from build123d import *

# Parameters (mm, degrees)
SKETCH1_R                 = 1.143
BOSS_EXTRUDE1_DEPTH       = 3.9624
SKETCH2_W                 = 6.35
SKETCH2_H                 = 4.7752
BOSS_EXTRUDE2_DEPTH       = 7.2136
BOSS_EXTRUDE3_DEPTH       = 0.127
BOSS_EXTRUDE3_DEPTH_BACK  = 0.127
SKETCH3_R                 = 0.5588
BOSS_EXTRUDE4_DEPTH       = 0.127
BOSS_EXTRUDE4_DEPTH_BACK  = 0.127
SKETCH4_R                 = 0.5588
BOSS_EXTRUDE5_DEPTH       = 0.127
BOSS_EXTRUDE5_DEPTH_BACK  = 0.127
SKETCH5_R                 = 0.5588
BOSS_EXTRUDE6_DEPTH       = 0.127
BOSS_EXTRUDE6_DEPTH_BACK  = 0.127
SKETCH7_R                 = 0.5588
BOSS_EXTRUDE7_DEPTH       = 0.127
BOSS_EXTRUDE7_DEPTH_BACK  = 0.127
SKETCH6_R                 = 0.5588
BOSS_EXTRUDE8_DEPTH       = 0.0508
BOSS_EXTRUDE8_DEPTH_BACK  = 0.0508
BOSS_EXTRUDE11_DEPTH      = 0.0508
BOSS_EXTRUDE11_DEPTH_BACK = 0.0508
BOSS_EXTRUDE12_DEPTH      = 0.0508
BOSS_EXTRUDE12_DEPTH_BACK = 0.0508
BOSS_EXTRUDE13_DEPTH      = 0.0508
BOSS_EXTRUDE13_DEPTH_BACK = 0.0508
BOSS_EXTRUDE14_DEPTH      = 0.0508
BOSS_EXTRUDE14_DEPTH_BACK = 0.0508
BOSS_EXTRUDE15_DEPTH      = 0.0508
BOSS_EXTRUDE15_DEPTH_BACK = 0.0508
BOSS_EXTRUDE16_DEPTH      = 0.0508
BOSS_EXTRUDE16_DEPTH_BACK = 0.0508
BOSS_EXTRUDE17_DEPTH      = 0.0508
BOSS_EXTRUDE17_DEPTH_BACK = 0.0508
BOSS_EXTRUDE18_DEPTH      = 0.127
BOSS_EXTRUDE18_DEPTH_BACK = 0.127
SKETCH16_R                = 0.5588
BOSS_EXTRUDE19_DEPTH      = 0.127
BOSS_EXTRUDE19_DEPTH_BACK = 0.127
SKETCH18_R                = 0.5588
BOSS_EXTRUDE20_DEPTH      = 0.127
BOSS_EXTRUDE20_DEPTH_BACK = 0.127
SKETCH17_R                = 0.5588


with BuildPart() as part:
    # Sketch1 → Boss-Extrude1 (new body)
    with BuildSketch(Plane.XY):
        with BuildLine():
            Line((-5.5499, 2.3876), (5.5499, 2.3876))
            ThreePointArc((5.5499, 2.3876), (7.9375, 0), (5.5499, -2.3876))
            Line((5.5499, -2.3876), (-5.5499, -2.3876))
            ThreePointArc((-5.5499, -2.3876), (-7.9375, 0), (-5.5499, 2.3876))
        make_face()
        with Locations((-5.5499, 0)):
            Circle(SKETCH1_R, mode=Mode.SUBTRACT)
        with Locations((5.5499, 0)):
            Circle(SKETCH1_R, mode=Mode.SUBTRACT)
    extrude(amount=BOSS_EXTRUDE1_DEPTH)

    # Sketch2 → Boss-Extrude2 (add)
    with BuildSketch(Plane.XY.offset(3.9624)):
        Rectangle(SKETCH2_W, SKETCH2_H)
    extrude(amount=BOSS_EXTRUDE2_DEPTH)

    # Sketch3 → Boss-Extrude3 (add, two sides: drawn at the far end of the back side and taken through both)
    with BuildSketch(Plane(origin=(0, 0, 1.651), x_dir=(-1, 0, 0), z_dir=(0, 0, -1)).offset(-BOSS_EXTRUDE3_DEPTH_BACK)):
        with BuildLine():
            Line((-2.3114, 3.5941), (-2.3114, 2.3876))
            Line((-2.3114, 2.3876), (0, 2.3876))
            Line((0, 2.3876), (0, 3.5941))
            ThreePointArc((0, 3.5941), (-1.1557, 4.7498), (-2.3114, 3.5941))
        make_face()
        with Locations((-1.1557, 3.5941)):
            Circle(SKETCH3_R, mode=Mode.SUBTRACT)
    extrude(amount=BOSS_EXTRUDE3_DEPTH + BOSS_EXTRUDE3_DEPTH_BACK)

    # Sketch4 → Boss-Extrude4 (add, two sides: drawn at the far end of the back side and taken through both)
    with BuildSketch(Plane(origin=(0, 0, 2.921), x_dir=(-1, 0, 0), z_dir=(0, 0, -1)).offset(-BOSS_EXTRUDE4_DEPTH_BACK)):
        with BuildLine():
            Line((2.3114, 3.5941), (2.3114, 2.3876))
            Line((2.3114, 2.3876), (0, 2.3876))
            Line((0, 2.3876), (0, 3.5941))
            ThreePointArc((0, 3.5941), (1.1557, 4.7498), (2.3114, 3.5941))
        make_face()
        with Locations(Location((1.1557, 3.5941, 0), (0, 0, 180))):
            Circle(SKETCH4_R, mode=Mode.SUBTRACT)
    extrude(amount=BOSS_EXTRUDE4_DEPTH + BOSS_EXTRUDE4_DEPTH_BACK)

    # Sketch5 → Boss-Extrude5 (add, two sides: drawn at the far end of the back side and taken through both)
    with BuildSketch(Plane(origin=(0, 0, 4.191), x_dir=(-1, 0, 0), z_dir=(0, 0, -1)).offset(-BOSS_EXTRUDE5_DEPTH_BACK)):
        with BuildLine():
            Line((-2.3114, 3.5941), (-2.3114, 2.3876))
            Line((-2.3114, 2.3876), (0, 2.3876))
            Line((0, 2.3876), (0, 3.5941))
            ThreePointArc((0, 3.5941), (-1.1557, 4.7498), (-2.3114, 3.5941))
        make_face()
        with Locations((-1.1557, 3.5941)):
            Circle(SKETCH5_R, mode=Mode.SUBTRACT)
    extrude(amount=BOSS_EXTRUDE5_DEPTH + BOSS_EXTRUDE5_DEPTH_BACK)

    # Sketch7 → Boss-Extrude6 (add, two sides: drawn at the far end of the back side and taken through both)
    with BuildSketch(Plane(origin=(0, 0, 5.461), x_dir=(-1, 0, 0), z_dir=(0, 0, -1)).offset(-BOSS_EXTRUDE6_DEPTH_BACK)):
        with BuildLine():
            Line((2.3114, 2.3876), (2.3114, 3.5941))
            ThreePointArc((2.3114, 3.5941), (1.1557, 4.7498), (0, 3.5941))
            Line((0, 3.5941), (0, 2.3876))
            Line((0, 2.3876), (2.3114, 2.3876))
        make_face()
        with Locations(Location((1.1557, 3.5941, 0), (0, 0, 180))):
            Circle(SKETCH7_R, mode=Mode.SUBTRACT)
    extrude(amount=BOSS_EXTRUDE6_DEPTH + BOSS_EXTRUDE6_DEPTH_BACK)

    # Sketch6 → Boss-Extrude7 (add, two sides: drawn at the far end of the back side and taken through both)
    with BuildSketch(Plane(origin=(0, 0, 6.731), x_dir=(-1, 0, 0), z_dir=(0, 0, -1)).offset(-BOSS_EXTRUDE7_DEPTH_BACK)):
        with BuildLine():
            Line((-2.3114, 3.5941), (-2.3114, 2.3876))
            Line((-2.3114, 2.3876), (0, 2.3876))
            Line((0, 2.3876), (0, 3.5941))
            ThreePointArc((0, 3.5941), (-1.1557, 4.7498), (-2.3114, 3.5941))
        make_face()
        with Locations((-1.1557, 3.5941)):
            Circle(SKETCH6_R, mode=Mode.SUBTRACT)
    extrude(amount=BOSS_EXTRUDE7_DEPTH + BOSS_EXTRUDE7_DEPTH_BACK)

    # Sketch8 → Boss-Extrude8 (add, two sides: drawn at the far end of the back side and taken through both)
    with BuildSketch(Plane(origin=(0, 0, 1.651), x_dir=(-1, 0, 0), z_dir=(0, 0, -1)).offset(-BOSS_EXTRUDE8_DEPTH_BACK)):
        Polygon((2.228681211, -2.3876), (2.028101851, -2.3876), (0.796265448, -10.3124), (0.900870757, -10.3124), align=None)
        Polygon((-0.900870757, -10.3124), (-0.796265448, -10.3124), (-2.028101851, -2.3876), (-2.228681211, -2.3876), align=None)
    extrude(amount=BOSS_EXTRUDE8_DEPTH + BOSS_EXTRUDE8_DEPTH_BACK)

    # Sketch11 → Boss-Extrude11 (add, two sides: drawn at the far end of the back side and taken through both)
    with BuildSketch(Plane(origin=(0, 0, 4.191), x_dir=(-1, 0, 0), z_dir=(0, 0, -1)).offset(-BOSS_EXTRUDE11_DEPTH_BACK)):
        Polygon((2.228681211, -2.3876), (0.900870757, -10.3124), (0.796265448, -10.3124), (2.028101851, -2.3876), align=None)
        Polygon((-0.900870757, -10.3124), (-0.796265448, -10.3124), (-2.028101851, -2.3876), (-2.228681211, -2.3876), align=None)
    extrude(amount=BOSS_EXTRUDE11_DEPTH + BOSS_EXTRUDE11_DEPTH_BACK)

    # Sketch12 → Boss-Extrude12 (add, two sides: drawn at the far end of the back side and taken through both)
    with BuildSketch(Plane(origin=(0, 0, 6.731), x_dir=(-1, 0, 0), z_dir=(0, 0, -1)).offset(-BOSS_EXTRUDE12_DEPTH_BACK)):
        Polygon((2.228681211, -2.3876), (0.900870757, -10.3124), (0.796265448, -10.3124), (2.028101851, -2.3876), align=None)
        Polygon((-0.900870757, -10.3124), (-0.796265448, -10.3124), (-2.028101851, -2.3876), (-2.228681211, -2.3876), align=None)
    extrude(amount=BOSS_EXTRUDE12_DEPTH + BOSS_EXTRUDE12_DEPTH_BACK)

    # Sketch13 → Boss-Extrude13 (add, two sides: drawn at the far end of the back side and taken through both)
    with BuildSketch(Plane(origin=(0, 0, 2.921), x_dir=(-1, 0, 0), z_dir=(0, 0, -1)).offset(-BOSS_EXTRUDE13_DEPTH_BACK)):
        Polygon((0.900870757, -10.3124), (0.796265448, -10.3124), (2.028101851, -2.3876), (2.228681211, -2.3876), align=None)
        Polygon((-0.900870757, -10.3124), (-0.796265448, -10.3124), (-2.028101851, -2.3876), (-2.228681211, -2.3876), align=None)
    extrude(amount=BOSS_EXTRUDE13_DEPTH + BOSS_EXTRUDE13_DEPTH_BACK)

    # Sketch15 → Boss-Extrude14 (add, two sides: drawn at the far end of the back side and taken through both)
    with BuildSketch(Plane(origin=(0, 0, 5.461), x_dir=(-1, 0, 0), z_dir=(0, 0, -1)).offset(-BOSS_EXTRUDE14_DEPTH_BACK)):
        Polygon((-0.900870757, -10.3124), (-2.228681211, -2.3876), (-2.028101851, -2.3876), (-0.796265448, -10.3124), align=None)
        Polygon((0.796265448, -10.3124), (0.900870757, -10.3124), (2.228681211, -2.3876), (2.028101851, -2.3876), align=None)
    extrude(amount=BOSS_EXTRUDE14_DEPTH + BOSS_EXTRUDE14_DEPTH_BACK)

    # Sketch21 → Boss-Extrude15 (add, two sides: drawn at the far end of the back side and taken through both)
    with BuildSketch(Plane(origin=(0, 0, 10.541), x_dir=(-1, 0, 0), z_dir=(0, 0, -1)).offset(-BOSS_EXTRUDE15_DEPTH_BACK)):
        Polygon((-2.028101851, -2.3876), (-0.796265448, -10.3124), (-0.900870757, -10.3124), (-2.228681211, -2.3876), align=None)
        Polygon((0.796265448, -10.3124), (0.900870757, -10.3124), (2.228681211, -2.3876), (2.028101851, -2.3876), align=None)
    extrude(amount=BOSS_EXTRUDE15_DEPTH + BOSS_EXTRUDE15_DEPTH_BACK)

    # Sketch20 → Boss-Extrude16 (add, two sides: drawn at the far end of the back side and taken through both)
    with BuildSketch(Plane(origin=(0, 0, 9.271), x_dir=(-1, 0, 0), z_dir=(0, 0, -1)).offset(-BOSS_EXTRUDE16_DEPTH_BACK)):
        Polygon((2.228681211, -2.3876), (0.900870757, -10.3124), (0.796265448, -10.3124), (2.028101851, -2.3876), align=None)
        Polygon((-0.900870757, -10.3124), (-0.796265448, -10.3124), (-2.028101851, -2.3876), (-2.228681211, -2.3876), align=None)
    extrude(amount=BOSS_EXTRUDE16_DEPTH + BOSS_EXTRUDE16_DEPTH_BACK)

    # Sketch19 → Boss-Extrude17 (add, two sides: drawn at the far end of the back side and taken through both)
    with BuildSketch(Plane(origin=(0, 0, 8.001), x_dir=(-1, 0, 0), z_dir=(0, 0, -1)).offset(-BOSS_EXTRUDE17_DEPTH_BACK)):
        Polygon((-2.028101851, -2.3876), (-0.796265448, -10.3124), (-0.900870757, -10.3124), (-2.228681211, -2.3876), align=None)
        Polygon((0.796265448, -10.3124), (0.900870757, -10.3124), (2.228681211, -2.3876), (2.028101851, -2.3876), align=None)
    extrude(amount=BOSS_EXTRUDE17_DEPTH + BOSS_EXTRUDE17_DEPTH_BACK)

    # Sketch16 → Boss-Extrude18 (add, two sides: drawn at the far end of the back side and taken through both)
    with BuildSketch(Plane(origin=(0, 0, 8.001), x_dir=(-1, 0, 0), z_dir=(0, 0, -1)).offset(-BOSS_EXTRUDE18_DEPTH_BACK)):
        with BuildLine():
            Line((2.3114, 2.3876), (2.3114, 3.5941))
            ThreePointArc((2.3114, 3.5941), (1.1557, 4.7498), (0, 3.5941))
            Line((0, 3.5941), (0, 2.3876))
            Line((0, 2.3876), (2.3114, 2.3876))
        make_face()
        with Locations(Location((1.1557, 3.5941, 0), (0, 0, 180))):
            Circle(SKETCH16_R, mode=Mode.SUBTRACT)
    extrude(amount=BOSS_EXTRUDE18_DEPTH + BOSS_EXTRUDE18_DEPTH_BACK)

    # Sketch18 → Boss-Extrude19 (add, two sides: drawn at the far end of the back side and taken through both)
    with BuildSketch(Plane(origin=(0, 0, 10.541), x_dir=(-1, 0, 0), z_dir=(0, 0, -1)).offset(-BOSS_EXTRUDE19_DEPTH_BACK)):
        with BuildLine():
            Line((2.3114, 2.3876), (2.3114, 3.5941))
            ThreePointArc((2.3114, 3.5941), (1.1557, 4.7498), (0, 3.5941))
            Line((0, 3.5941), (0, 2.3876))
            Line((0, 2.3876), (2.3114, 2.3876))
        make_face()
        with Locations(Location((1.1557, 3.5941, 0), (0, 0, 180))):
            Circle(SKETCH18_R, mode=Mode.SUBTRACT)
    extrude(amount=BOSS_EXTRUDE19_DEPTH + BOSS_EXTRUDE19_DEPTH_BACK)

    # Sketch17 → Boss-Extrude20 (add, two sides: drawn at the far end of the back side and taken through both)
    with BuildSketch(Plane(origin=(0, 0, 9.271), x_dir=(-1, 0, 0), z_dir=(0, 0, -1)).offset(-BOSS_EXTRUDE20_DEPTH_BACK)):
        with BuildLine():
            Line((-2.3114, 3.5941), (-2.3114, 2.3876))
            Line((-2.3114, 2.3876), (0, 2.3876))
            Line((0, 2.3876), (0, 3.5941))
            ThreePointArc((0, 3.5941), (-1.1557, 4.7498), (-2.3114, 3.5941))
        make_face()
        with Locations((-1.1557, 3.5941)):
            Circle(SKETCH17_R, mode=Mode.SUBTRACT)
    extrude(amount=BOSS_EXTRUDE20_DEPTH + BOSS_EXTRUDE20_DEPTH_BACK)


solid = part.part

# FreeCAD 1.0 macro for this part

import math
import FreeCAD as App
import Part
import Sketcher

V = App.Vector
Q = App.Units.Quantity

doc = App.newDocument("Part")
body = doc.addObject("PartDesign::Body", "Body")

sketch1 = doc.addObject("Sketcher::SketchObject", "Sketch")
body.addObject(sketch1)
sketch1.AttachmentSupport = (doc.XY_Plane, [""])
sketch1.MapMode = "FlatFace"
sketch1.addGeometry(Part.LineSegment(V(5.5, 2.4, 0), V(-5.5, 2.4, 0)), False)
sketch1.addGeometry(Part.ArcOfCircle(Part.Circle(V(-5.5, 0, 0), V(0, 0, 1), 2.4), math.radians(90), math.radians(270)), False)
sketch1.addGeometry(Part.LineSegment(V(-5.5, -2.4, 0), V(5.5, -2.4, 0)), False)
sketch1.addGeometry(Part.ArcOfCircle(Part.Circle(V(5.5, 0, 0), V(0, 0, 1), 2.4), math.radians(-90), math.radians(90)), False)
sketch1.addGeometry(Part.Circle(V(5.5, 0, 0), V(0, 0, 1), 1.1), False)
sketch1.addGeometry(Part.Circle(V(-5.5, 0, 0), V(0, 0, 1), 1.1), False)
sketch1.addConstraint(Sketcher.Constraint("Tangent", 0, 2, 1, 1))
sketch1.addConstraint(Sketcher.Constraint("Tangent", 1, 2, 2, 1))
sketch1.addConstraint(Sketcher.Constraint("Tangent", 2, 2, 3, 1))
sketch1.addConstraint(Sketcher.Constraint("Tangent", 3, 2, 0, 1))
sketch1.addConstraint(Sketcher.Constraint("Horizontal", 0))
sketch1.addConstraint(Sketcher.Constraint("Horizontal", 2))
sketch1.addConstraint(Sketcher.Constraint("Coincident", 4, 3, 3, 3))
sketch1.addConstraint(Sketcher.Constraint("Coincident", 5, 3, 1, 3))
sketch1.addConstraint(Sketcher.Constraint("Equal", 4, 5))
sketch1.addConstraint(Sketcher.Constraint("Symmetric", 1, 3, 3, 3, -1, 1))
sketch1.addConstraint(Sketcher.Constraint("Diameter", 4, Q("0.09 in")))
sketch1.addConstraint(Sketcher.Constraint("Radius", 1, Q("0.094 in")))
sketch1.addConstraint(Sketcher.Constraint("DistanceX", 0, 2, 0, 1, Q("0.437 in")))
pad1 = doc.addObject("PartDesign::Pad", "Pad")
body.addObject(pad1)
pad1.Profile = sketch1
pad1.Length = Q("0.156 in")

sketch2 = doc.addObject("Sketcher::SketchObject", "Sketch001")
body.addObject(sketch2)
sketch2.AttachmentSupport = (doc.XY_Plane, [""])
sketch2.MapMode = "FlatFace"
sketch2.AttachmentOffset = App.Placement(V(0, 0, 0.156 * 25.4), App.Rotation())
sketch2.addGeometry(Part.LineSegment(V(-3.2, 2.4, 0), V(-3.2, -2.4, 0)), False)
sketch2.addGeometry(Part.LineSegment(V(-3.2, -2.4, 0), V(3.2, -2.4, 0)), False)
sketch2.addGeometry(Part.LineSegment(V(3.2, -2.4, 0), V(3.2, 2.4, 0)), False)
sketch2.addGeometry(Part.LineSegment(V(3.2, 2.4, 0), V(-3.2, 2.4, 0)), False)
sketch2.addConstraint(Sketcher.Constraint("Coincident", 0, 2, 1, 1))
sketch2.addConstraint(Sketcher.Constraint("Coincident", 1, 2, 2, 1))
sketch2.addConstraint(Sketcher.Constraint("Coincident", 2, 2, 3, 1))
sketch2.addConstraint(Sketcher.Constraint("Coincident", 3, 2, 0, 1))
sketch2.addConstraint(Sketcher.Constraint("Vertical", 0))
sketch2.addConstraint(Sketcher.Constraint("Horizontal", 1))
sketch2.addConstraint(Sketcher.Constraint("Vertical", 2))
sketch2.addConstraint(Sketcher.Constraint("Horizontal", 3))
sketch2.addConstraint(Sketcher.Constraint("Symmetric", 0, 2, 2, 2, -1, 1))
sketch2.addConstraint(Sketcher.Constraint("DistanceX", 1, 1, 1, 2, Q("0.25 in")))
sketch2.addConstraint(Sketcher.Constraint("DistanceY", 0, 2, 0, 1, Q("0.188 in")))
pad2 = doc.addObject("PartDesign::Pad", "Pad001")
body.addObject(pad2)
pad2.Profile = sketch2
pad2.Length = Q("0.284 in")

sketch3 = doc.addObject("Sketcher::SketchObject", "Sketch002")
body.addObject(sketch3)
sketch3.AttachmentSupport = (doc.XY_Plane, [""])
sketch3.MapMode = "FlatFace"
sketch3.AttachmentOffset = App.Placement(V(0, 0, 0.065 * 25.4), App.Rotation())
sketch3.addGeometry(Part.LineSegment(V(2.3, 3.6, 0), V(2.3, 2.4, 0)), False)
sketch3.addGeometry(Part.LineSegment(V(2.3, 2.4, 0), V(0, 2.4, 0)), False)
sketch3.addGeometry(Part.LineSegment(V(0, 2.4, 0), V(0, 3.6, 0)), False)
sketch3.addGeometry(Part.ArcOfCircle(Part.Circle(V(1.2, 3.6, 0), V(0, 0, 1), 1.2), math.radians(0), math.radians(180)), False)
sketch3.addGeometry(Part.Circle(V(1.2, 3.6, 0), V(0, 0, 1), 0.6), False)
sketch3.addConstraint(Sketcher.Constraint("Coincident", 0, 2, 1, 1))
sketch3.addConstraint(Sketcher.Constraint("Coincident", 1, 2, 2, 1))
sketch3.addConstraint(Sketcher.Constraint("Tangent", 2, 2, 3, 2))
sketch3.addConstraint(Sketcher.Constraint("Tangent", 3, 1, 0, 1))
sketch3.addConstraint(Sketcher.Constraint("Vertical", 0))
sketch3.addConstraint(Sketcher.Constraint("Horizontal", 1))
sketch3.addConstraint(Sketcher.Constraint("Vertical", 2))
sketch3.addConstraint(Sketcher.Constraint("Coincident", 4, 3, 3, 3))
sketch3.addConstraint(Sketcher.Constraint("PointOnObject", 1, 2, -2))
sketch3.addConstraint(Sketcher.Constraint("Diameter", 4, Q("0.044 in")))
sketch3.addConstraint(Sketcher.Constraint("Radius", 3, Q("0.0455 in")))
sketch3.addConstraint(Sketcher.Constraint("DistanceY", 0, 2, 0, 1, Q("0.0475 in")))
sketch3.addConstraint(Sketcher.Constraint("DistanceY", -1, 1, 0, 2, Q("0.094 in")))
pad3 = doc.addObject("PartDesign::Pad", "Pad002")
body.addObject(pad3)
pad3.Profile = sketch3
pad3.Type = "TwoLengths"
pad3.Length = Q("0.005 in")
pad3.Length2 = Q("0.005 in")
pad3.Reversed = True

sketch4 = doc.addObject("Sketcher::SketchObject", "Sketch003")
body.addObject(sketch4)
sketch4.AttachmentSupport = (doc.XY_Plane, [""])
sketch4.MapMode = "FlatFace"
sketch4.AttachmentOffset = App.Placement(V(0, 0, 0.115 * 25.4), App.Rotation())
sketch4.addGeometry(Part.LineSegment(V(-2.3, 2.4, 0), V(-2.3, 3.6, 0)), False)
sketch4.addGeometry(Part.ArcOfCircle(Part.Circle(V(-1.2, 3.6, 0), V(0, 0, 1), 1.2), math.radians(0), math.radians(180)), False)
sketch4.addGeometry(Part.LineSegment(V(0, 3.6, 0), V(0, 2.4, 0)), False)
sketch4.addGeometry(Part.LineSegment(V(0, 2.4, 0), V(-2.3, 2.4, 0)), False)
sketch4.addGeometry(Part.Circle(V(-1.2, 3.6, 0), V(0, 0, 1), 0.6), False)
sketch4.addConstraint(Sketcher.Constraint("Tangent", 0, 2, 1, 2))
sketch4.addConstraint(Sketcher.Constraint("Tangent", 1, 1, 2, 1))
sketch4.addConstraint(Sketcher.Constraint("Coincident", 2, 2, 3, 1))
sketch4.addConstraint(Sketcher.Constraint("Coincident", 3, 2, 0, 1))
sketch4.addConstraint(Sketcher.Constraint("Vertical", 0))
sketch4.addConstraint(Sketcher.Constraint("Vertical", 2))
sketch4.addConstraint(Sketcher.Constraint("Horizontal", 3))
sketch4.addConstraint(Sketcher.Constraint("Coincident", 4, 3, 1, 3))
sketch4.addConstraint(Sketcher.Constraint("PointOnObject", 1, 1, -2))
sketch4.addConstraint(Sketcher.Constraint("Diameter", 4, Q("0.044 in")))
sketch4.addConstraint(Sketcher.Constraint("Radius", 1, Q("0.0455 in")))
sketch4.addConstraint(Sketcher.Constraint("DistanceY", 0, 1, 0, 2, Q("0.0475 in")))
sketch4.addConstraint(Sketcher.Constraint("DistanceY", -1, 1, 2, 2, Q("0.094 in")))
pad4 = doc.addObject("PartDesign::Pad", "Pad003")
body.addObject(pad4)
pad4.Profile = sketch4
pad4.Type = "TwoLengths"
pad4.Length = Q("0.005 in")
pad4.Length2 = Q("0.005 in")
pad4.Reversed = True

sketch5 = doc.addObject("Sketcher::SketchObject", "Sketch004")
body.addObject(sketch5)
sketch5.AttachmentSupport = (doc.XY_Plane, [""])
sketch5.MapMode = "FlatFace"
sketch5.AttachmentOffset = App.Placement(V(0, 0, 0.165 * 25.4), App.Rotation())
sketch5.addGeometry(Part.LineSegment(V(2.3, 3.6, 0), V(2.3, 2.4, 0)), False)
sketch5.addGeometry(Part.LineSegment(V(2.3, 2.4, 0), V(0, 2.4, 0)), False)
sketch5.addGeometry(Part.LineSegment(V(0, 2.4, 0), V(0, 3.6, 0)), False)
sketch5.addGeometry(Part.ArcOfCircle(Part.Circle(V(1.2, 3.6, 0), V(0, 0, 1), 1.2), math.radians(0), math.radians(180)), False)
sketch5.addGeometry(Part.Circle(V(1.2, 3.6, 0), V(0, 0, 1), 0.6), False)
sketch5.addConstraint(Sketcher.Constraint("Coincident", 0, 2, 1, 1))
sketch5.addConstraint(Sketcher.Constraint("Coincident", 1, 2, 2, 1))
sketch5.addConstraint(Sketcher.Constraint("Tangent", 2, 2, 3, 2))
sketch5.addConstraint(Sketcher.Constraint("Tangent", 3, 1, 0, 1))
sketch5.addConstraint(Sketcher.Constraint("Vertical", 0))
sketch5.addConstraint(Sketcher.Constraint("Horizontal", 1))
sketch5.addConstraint(Sketcher.Constraint("Vertical", 2))
sketch5.addConstraint(Sketcher.Constraint("Coincident", 4, 3, 3, 3))
sketch5.addConstraint(Sketcher.Constraint("PointOnObject", 1, 2, -2))
sketch5.addConstraint(Sketcher.Constraint("Diameter", 4, Q("0.044 in")))
sketch5.addConstraint(Sketcher.Constraint("Radius", 3, Q("0.0455 in")))
sketch5.addConstraint(Sketcher.Constraint("DistanceY", 0, 2, 0, 1, Q("0.0475 in")))
sketch5.addConstraint(Sketcher.Constraint("DistanceY", -1, 1, 0, 2, Q("0.094 in")))
pad5 = doc.addObject("PartDesign::Pad", "Pad004")
body.addObject(pad5)
pad5.Profile = sketch5
pad5.Type = "TwoLengths"
pad5.Length = Q("0.005 in")
pad5.Length2 = Q("0.005 in")
pad5.Reversed = True

sketch6 = doc.addObject("Sketcher::SketchObject", "Sketch005")
body.addObject(sketch6)
sketch6.AttachmentSupport = (doc.XY_Plane, [""])
sketch6.MapMode = "FlatFace"
sketch6.AttachmentOffset = App.Placement(V(0, 0, 0.215 * 25.4), App.Rotation())
sketch6.addGeometry(Part.LineSegment(V(-2.3, 2.4, 0), V(-2.3, 3.6, 0)), False)
sketch6.addGeometry(Part.ArcOfCircle(Part.Circle(V(-1.2, 3.6, 0), V(0, 0, 1), 1.2), math.radians(0), math.radians(180)), False)
sketch6.addGeometry(Part.LineSegment(V(0, 3.6, 0), V(0, 2.4, 0)), False)
sketch6.addGeometry(Part.LineSegment(V(0, 2.4, 0), V(-2.3, 2.4, 0)), False)
sketch6.addGeometry(Part.Circle(V(-1.2, 3.6, 0), V(0, 0, 1), 0.6), False)
sketch6.addConstraint(Sketcher.Constraint("Tangent", 0, 2, 1, 2))
sketch6.addConstraint(Sketcher.Constraint("Tangent", 1, 1, 2, 1))
sketch6.addConstraint(Sketcher.Constraint("Coincident", 2, 2, 3, 1))
sketch6.addConstraint(Sketcher.Constraint("Coincident", 3, 2, 0, 1))
sketch6.addConstraint(Sketcher.Constraint("Vertical", 0))
sketch6.addConstraint(Sketcher.Constraint("Vertical", 2))
sketch6.addConstraint(Sketcher.Constraint("Horizontal", 3))
sketch6.addConstraint(Sketcher.Constraint("Coincident", 4, 3, 1, 3))
sketch6.addConstraint(Sketcher.Constraint("PointOnObject", 1, 1, -2))
sketch6.addConstraint(Sketcher.Constraint("Diameter", 4, Q("0.044 in")))
sketch6.addConstraint(Sketcher.Constraint("Radius", 1, Q("0.0455 in")))
sketch6.addConstraint(Sketcher.Constraint("DistanceY", 0, 1, 0, 2, Q("0.0475 in")))
sketch6.addConstraint(Sketcher.Constraint("DistanceY", -1, 1, 2, 2, Q("0.094 in")))
pad6 = doc.addObject("PartDesign::Pad", "Pad005")
body.addObject(pad6)
pad6.Profile = sketch6
pad6.Type = "TwoLengths"
pad6.Length = Q("0.005 in")
pad6.Length2 = Q("0.005 in")
pad6.Reversed = True

sketch7 = doc.addObject("Sketcher::SketchObject", "Sketch006")
body.addObject(sketch7)
sketch7.AttachmentSupport = (doc.XY_Plane, [""])
sketch7.MapMode = "FlatFace"
sketch7.AttachmentOffset = App.Placement(V(0, 0, 0.265 * 25.4), App.Rotation())
sketch7.addGeometry(Part.LineSegment(V(2.3, 3.6, 0), V(2.3, 2.4, 0)), False)
sketch7.addGeometry(Part.LineSegment(V(2.3, 2.4, 0), V(0, 2.4, 0)), False)
sketch7.addGeometry(Part.LineSegment(V(0, 2.4, 0), V(0, 3.6, 0)), False)
sketch7.addGeometry(Part.ArcOfCircle(Part.Circle(V(1.2, 3.6, 0), V(0, 0, 1), 1.2), math.radians(0), math.radians(180)), False)
sketch7.addGeometry(Part.Circle(V(1.2, 3.6, 0), V(0, 0, 1), 0.6), False)
sketch7.addConstraint(Sketcher.Constraint("Coincident", 0, 2, 1, 1))
sketch7.addConstraint(Sketcher.Constraint("Coincident", 1, 2, 2, 1))
sketch7.addConstraint(Sketcher.Constraint("Tangent", 2, 2, 3, 2))
sketch7.addConstraint(Sketcher.Constraint("Tangent", 3, 1, 0, 1))
sketch7.addConstraint(Sketcher.Constraint("Vertical", 0))
sketch7.addConstraint(Sketcher.Constraint("Horizontal", 1))
sketch7.addConstraint(Sketcher.Constraint("Vertical", 2))
sketch7.addConstraint(Sketcher.Constraint("Coincident", 4, 3, 3, 3))
sketch7.addConstraint(Sketcher.Constraint("PointOnObject", 1, 2, -2))
sketch7.addConstraint(Sketcher.Constraint("Diameter", 4, Q("0.044 in")))
sketch7.addConstraint(Sketcher.Constraint("Radius", 3, Q("0.0455 in")))
sketch7.addConstraint(Sketcher.Constraint("DistanceY", 0, 2, 0, 1, Q("0.0475 in")))
sketch7.addConstraint(Sketcher.Constraint("DistanceY", -1, 1, 0, 2, Q("0.094 in")))
pad7 = doc.addObject("PartDesign::Pad", "Pad006")
body.addObject(pad7)
pad7.Profile = sketch7
pad7.Type = "TwoLengths"
pad7.Length = Q("0.005 in")
pad7.Length2 = Q("0.005 in")
pad7.Reversed = True

sketch8 = doc.addObject("Sketcher::SketchObject", "Sketch007")
body.addObject(sketch8)
sketch8.AttachmentSupport = (doc.XY_Plane, [""])
sketch8.MapMode = "FlatFace"
sketch8.AttachmentOffset = App.Placement(V(0, 0, 0.065 * 25.4), App.Rotation())
sketch8.addGeometry(Part.LineSegment(V(-2.23, -2.39, 0), V(-2.03, -2.39, 0)), False)
sketch8.addGeometry(Part.LineSegment(V(-2.03, -2.39, 0), V(-0.8, -10.31, 0)), False)
sketch8.addGeometry(Part.LineSegment(V(-0.8, -10.31, 0), V(-0.9, -10.31, 0)), False)
sketch8.addGeometry(Part.LineSegment(V(-0.9, -10.31, 0), V(-2.23, -2.39, 0)), False)
sketch8.addGeometry(Part.LineSegment(V(0.9, -10.31, 0), V(0.8, -10.31, 0)), False)
sketch8.addGeometry(Part.LineSegment(V(0.8, -10.31, 0), V(2.03, -2.39, 0)), False)
sketch8.addGeometry(Part.LineSegment(V(2.03, -2.39, 0), V(2.23, -2.39, 0)), False)
sketch8.addGeometry(Part.LineSegment(V(2.23, -2.39, 0), V(0.9, -10.31, 0)), False)
sketch8.addConstraint(Sketcher.Constraint("Coincident", 0, 2, 1, 1))
sketch8.addConstraint(Sketcher.Constraint("Coincident", 1, 2, 2, 1))
sketch8.addConstraint(Sketcher.Constraint("Coincident", 2, 2, 3, 1))
sketch8.addConstraint(Sketcher.Constraint("Coincident", 3, 2, 0, 1))
sketch8.addConstraint(Sketcher.Constraint("Coincident", 4, 2, 5, 1))
sketch8.addConstraint(Sketcher.Constraint("Coincident", 5, 2, 6, 1))
sketch8.addConstraint(Sketcher.Constraint("Coincident", 6, 2, 7, 1))
sketch8.addConstraint(Sketcher.Constraint("Coincident", 7, 2, 4, 1))
sketch8.addConstraint(Sketcher.Constraint("Horizontal", 0))
sketch8.addConstraint(Sketcher.Constraint("Horizontal", 2))
sketch8.addConstraint(Sketcher.Constraint("Horizontal", 4))
sketch8.addConstraint(Sketcher.Constraint("Horizontal", 6))
sketch8.addConstraint(Sketcher.Constraint("Symmetric", 1, 2, 4, 2, -2))
sketch8.addConstraint(Sketcher.Constraint("Symmetric", 0, 2, 5, 2, -2))
sketch8.addConstraint(Sketcher.Constraint("Equal", 2, 4))
sketch8.addConstraint(Sketcher.Constraint("Equal", 0, 6))
sketch8.addConstraint(Sketcher.Constraint("DistanceY", 0, 2, -1, 1, Q("0.094 in")))
sketch8.addConstraint(Sketcher.Constraint("DistanceY", 1, 2, -1, 1, Q("0.406 in")))
sketch8.addConstraint(Sketcher.Constraint("DistanceX", 0, 1, 0, 2, Q("0.200579 mm")))
sketch8.addConstraint(Sketcher.Constraint("DistanceX", 0, 2, -1, 1, Q("2.028102 mm")))
sketch8.addConstraint(Sketcher.Constraint("Distance", 3, Q("8.035268 mm")))
sketch8.addConstraint(Sketcher.Constraint("DistanceX", 2, 2, 2, 1, Q("0.104605 mm")))
pad8 = doc.addObject("PartDesign::Pad", "Pad007")
body.addObject(pad8)
pad8.Profile = sketch8
pad8.Type = "TwoLengths"
pad8.Length = Q("0.002 in")
pad8.Length2 = Q("0.002 in")
pad8.Reversed = True

sketch9 = doc.addObject("Sketcher::SketchObject", "Sketch008")
body.addObject(sketch9)
sketch9.AttachmentSupport = (doc.XY_Plane, [""])
sketch9.MapMode = "FlatFace"
sketch9.AttachmentOffset = App.Placement(V(0, 0, 0.165 * 25.4), App.Rotation())
sketch9.addGeometry(Part.LineSegment(V(-0.9, -10.31, 0), V(-2.23, -2.39, 0)), False)
sketch9.addGeometry(Part.LineSegment(V(-2.23, -2.39, 0), V(-2.03, -2.39, 0)), False)
sketch9.addGeometry(Part.LineSegment(V(-2.03, -2.39, 0), V(-0.8, -10.31, 0)), False)
sketch9.addGeometry(Part.LineSegment(V(-0.8, -10.31, 0), V(-0.9, -10.31, 0)), False)
sketch9.addGeometry(Part.LineSegment(V(0.9, -10.31, 0), V(0.8, -10.31, 0)), False)
sketch9.addGeometry(Part.LineSegment(V(0.8, -10.31, 0), V(2.03, -2.39, 0)), False)
sketch9.addGeometry(Part.LineSegment(V(2.03, -2.39, 0), V(2.23, -2.39, 0)), False)
sketch9.addGeometry(Part.LineSegment(V(2.23, -2.39, 0), V(0.9, -10.31, 0)), False)
sketch9.addConstraint(Sketcher.Constraint("Coincident", 0, 2, 1, 1))
sketch9.addConstraint(Sketcher.Constraint("Coincident", 1, 2, 2, 1))
sketch9.addConstraint(Sketcher.Constraint("Coincident", 2, 2, 3, 1))
sketch9.addConstraint(Sketcher.Constraint("Coincident", 3, 2, 0, 1))
sketch9.addConstraint(Sketcher.Constraint("Coincident", 4, 2, 5, 1))
sketch9.addConstraint(Sketcher.Constraint("Coincident", 5, 2, 6, 1))
sketch9.addConstraint(Sketcher.Constraint("Coincident", 6, 2, 7, 1))
sketch9.addConstraint(Sketcher.Constraint("Coincident", 7, 2, 4, 1))
sketch9.addConstraint(Sketcher.Constraint("Horizontal", 1))
sketch9.addConstraint(Sketcher.Constraint("Horizontal", 3))
sketch9.addConstraint(Sketcher.Constraint("Horizontal", 4))
sketch9.addConstraint(Sketcher.Constraint("Horizontal", 6))
sketch9.addConstraint(Sketcher.Constraint("Symmetric", 2, 2, 4, 2, -2))
sketch9.addConstraint(Sketcher.Constraint("Symmetric", 1, 2, 5, 2, -2))
sketch9.addConstraint(Sketcher.Constraint("Equal", 3, 4))
sketch9.addConstraint(Sketcher.Constraint("Equal", 1, 6))
sketch9.addConstraint(Sketcher.Constraint("DistanceY", 0, 2, -1, 1, Q("0.094 in")))
sketch9.addConstraint(Sketcher.Constraint("DistanceY", 2, 2, -1, 1, Q("0.406 in")))
sketch9.addConstraint(Sketcher.Constraint("DistanceX", 1, 1, 1, 2, Q("0.200579 mm")))
sketch9.addConstraint(Sketcher.Constraint("DistanceX", 1, 2, -1, 1, Q("2.028102 mm")))
sketch9.addConstraint(Sketcher.Constraint("Distance", 0, Q("8.035268 mm")))
sketch9.addConstraint(Sketcher.Constraint("DistanceX", 3, 2, 3, 1, Q("0.104605 mm")))
pad9 = doc.addObject("PartDesign::Pad", "Pad008")
body.addObject(pad9)
pad9.Profile = sketch9
pad9.Type = "TwoLengths"
pad9.Length = Q("0.002 in")
pad9.Length2 = Q("0.002 in")
pad9.Reversed = True

sketch10 = doc.addObject("Sketcher::SketchObject", "Sketch009")
body.addObject(sketch10)
sketch10.AttachmentSupport = (doc.XY_Plane, [""])
sketch10.MapMode = "FlatFace"
sketch10.AttachmentOffset = App.Placement(V(0, 0, 0.265 * 25.4), App.Rotation())
sketch10.addGeometry(Part.LineSegment(V(-0.9, -10.31, 0), V(-2.23, -2.39, 0)), False)
sketch10.addGeometry(Part.LineSegment(V(-2.23, -2.39, 0), V(-2.03, -2.39, 0)), False)
sketch10.addGeometry(Part.LineSegment(V(-2.03, -2.39, 0), V(-0.8, -10.31, 0)), False)
sketch10.addGeometry(Part.LineSegment(V(-0.8, -10.31, 0), V(-0.9, -10.31, 0)), False)
sketch10.addGeometry(Part.LineSegment(V(0.9, -10.31, 0), V(0.8, -10.31, 0)), False)
sketch10.addGeometry(Part.LineSegment(V(0.8, -10.31, 0), V(2.03, -2.39, 0)), False)
sketch10.addGeometry(Part.LineSegment(V(2.03, -2.39, 0), V(2.23, -2.39, 0)), False)
sketch10.addGeometry(Part.LineSegment(V(2.23, -2.39, 0), V(0.9, -10.31, 0)), False)
sketch10.addConstraint(Sketcher.Constraint("Coincident", 0, 2, 1, 1))
sketch10.addConstraint(Sketcher.Constraint("Coincident", 1, 2, 2, 1))
sketch10.addConstraint(Sketcher.Constraint("Coincident", 2, 2, 3, 1))
sketch10.addConstraint(Sketcher.Constraint("Coincident", 3, 2, 0, 1))
sketch10.addConstraint(Sketcher.Constraint("Coincident", 4, 2, 5, 1))
sketch10.addConstraint(Sketcher.Constraint("Coincident", 5, 2, 6, 1))
sketch10.addConstraint(Sketcher.Constraint("Coincident", 6, 2, 7, 1))
sketch10.addConstraint(Sketcher.Constraint("Coincident", 7, 2, 4, 1))
sketch10.addConstraint(Sketcher.Constraint("Horizontal", 1))
sketch10.addConstraint(Sketcher.Constraint("Horizontal", 3))
sketch10.addConstraint(Sketcher.Constraint("Horizontal", 4))
sketch10.addConstraint(Sketcher.Constraint("Horizontal", 6))
sketch10.addConstraint(Sketcher.Constraint("Symmetric", 2, 2, 4, 2, -2))
sketch10.addConstraint(Sketcher.Constraint("Symmetric", 1, 2, 5, 2, -2))
sketch10.addConstraint(Sketcher.Constraint("Equal", 3, 4))
sketch10.addConstraint(Sketcher.Constraint("Equal", 1, 6))
sketch10.addConstraint(Sketcher.Constraint("DistanceY", 0, 2, -1, 1, Q("0.094 in")))
sketch10.addConstraint(Sketcher.Constraint("DistanceY", 2, 2, -1, 1, Q("0.406 in")))
sketch10.addConstraint(Sketcher.Constraint("DistanceX", 1, 1, 1, 2, Q("0.200579 mm")))
sketch10.addConstraint(Sketcher.Constraint("DistanceX", 1, 2, -1, 1, Q("2.028102 mm")))
sketch10.addConstraint(Sketcher.Constraint("Distance", 0, Q("8.035268 mm")))
sketch10.addConstraint(Sketcher.Constraint("DistanceX", 3, 2, 3, 1, Q("0.104605 mm")))
pad10 = doc.addObject("PartDesign::Pad", "Pad009")
body.addObject(pad10)
pad10.Profile = sketch10
pad10.Type = "TwoLengths"
pad10.Length = Q("0.002 in")
pad10.Length2 = Q("0.002 in")
pad10.Reversed = True

sketch11 = doc.addObject("Sketcher::SketchObject", "Sketch010")
body.addObject(sketch11)
sketch11.AttachmentSupport = (doc.XY_Plane, [""])
sketch11.MapMode = "FlatFace"
sketch11.AttachmentOffset = App.Placement(V(0, 0, 0.115 * 25.4), App.Rotation())
sketch11.addGeometry(Part.LineSegment(V(-0.8, -10.31, 0), V(-0.9, -10.31, 0)), False)
sketch11.addGeometry(Part.LineSegment(V(-0.9, -10.31, 0), V(-2.23, -2.39, 0)), False)
sketch11.addGeometry(Part.LineSegment(V(-2.23, -2.39, 0), V(-2.03, -2.39, 0)), False)
sketch11.addGeometry(Part.LineSegment(V(-2.03, -2.39, 0), V(-0.8, -10.31, 0)), False)
sketch11.addGeometry(Part.LineSegment(V(0.9, -10.31, 0), V(0.8, -10.31, 0)), False)
sketch11.addGeometry(Part.LineSegment(V(0.8, -10.31, 0), V(2.03, -2.39, 0)), False)
sketch11.addGeometry(Part.LineSegment(V(2.03, -2.39, 0), V(2.23, -2.39, 0)), False)
sketch11.addGeometry(Part.LineSegment(V(2.23, -2.39, 0), V(0.9, -10.31, 0)), False)
sketch11.addConstraint(Sketcher.Constraint("Coincident", 0, 2, 1, 1))
sketch11.addConstraint(Sketcher.Constraint("Coincident", 1, 2, 2, 1))
sketch11.addConstraint(Sketcher.Constraint("Coincident", 2, 2, 3, 1))
sketch11.addConstraint(Sketcher.Constraint("Coincident", 3, 2, 0, 1))
sketch11.addConstraint(Sketcher.Constraint("Coincident", 4, 2, 5, 1))
sketch11.addConstraint(Sketcher.Constraint("Coincident", 5, 2, 6, 1))
sketch11.addConstraint(Sketcher.Constraint("Coincident", 6, 2, 7, 1))
sketch11.addConstraint(Sketcher.Constraint("Coincident", 7, 2, 4, 1))
sketch11.addConstraint(Sketcher.Constraint("Horizontal", 0))
sketch11.addConstraint(Sketcher.Constraint("Horizontal", 2))
sketch11.addConstraint(Sketcher.Constraint("Horizontal", 4))
sketch11.addConstraint(Sketcher.Constraint("Horizontal", 6))
sketch11.addConstraint(Sketcher.Constraint("Symmetric", 3, 2, 4, 2, -2))
sketch11.addConstraint(Sketcher.Constraint("Symmetric", 2, 2, 5, 2, -2))
sketch11.addConstraint(Sketcher.Constraint("Equal", 0, 4))
sketch11.addConstraint(Sketcher.Constraint("Equal", 2, 6))
sketch11.addConstraint(Sketcher.Constraint("DistanceY", 0, 2, -1, 1, Q("0.406 in")))
sketch11.addConstraint(Sketcher.Constraint("DistanceY", 1, 2, -1, 1, Q("0.094 in")))
sketch11.addConstraint(Sketcher.Constraint("DistanceX", 2, 1, 2, 2, Q("0.200579 mm")))
sketch11.addConstraint(Sketcher.Constraint("DistanceX", 2, 2, -1, 1, Q("2.028102 mm")))
sketch11.addConstraint(Sketcher.Constraint("Distance", 1, Q("8.035268 mm")))
sketch11.addConstraint(Sketcher.Constraint("DistanceX", 0, 2, 0, 1, Q("0.104605 mm")))
pad11 = doc.addObject("PartDesign::Pad", "Pad010")
body.addObject(pad11)
pad11.Profile = sketch11
pad11.Type = "TwoLengths"
pad11.Length = Q("0.002 in")
pad11.Length2 = Q("0.002 in")
pad11.Reversed = True

sketch12 = doc.addObject("Sketcher::SketchObject", "Sketch011")
body.addObject(sketch12)
sketch12.AttachmentSupport = (doc.XY_Plane, [""])
sketch12.MapMode = "FlatFace"
sketch12.AttachmentOffset = App.Placement(V(0, 0, 0.215 * 25.4), App.Rotation())
sketch12.addGeometry(Part.LineSegment(V(2.23, -2.39, 0), V(0.9, -10.31, 0)), False)
sketch12.addGeometry(Part.LineSegment(V(0.9, -10.31, 0), V(0.8, -10.31, 0)), False)
sketch12.addGeometry(Part.LineSegment(V(0.8, -10.31, 0), V(2.03, -2.39, 0)), False)
sketch12.addGeometry(Part.LineSegment(V(2.03, -2.39, 0), V(2.23, -2.39, 0)), False)
sketch12.addGeometry(Part.LineSegment(V(-0.8, -10.31, 0), V(-0.9, -10.31, 0)), False)
sketch12.addGeometry(Part.LineSegment(V(-0.9, -10.31, 0), V(-2.23, -2.39, 0)), False)
sketch12.addGeometry(Part.LineSegment(V(-2.23, -2.39, 0), V(-2.03, -2.39, 0)), False)
sketch12.addGeometry(Part.LineSegment(V(-2.03, -2.39, 0), V(-0.8, -10.31, 0)), False)
sketch12.addConstraint(Sketcher.Constraint("Coincident", 0, 2, 1, 1))
sketch12.addConstraint(Sketcher.Constraint("Coincident", 1, 2, 2, 1))
sketch12.addConstraint(Sketcher.Constraint("Coincident", 2, 2, 3, 1))
sketch12.addConstraint(Sketcher.Constraint("Coincident", 3, 2, 0, 1))
sketch12.addConstraint(Sketcher.Constraint("Coincident", 4, 2, 5, 1))
sketch12.addConstraint(Sketcher.Constraint("Coincident", 5, 2, 6, 1))
sketch12.addConstraint(Sketcher.Constraint("Coincident", 6, 2, 7, 1))
sketch12.addConstraint(Sketcher.Constraint("Coincident", 7, 2, 4, 1))
sketch12.addConstraint(Sketcher.Constraint("Horizontal", 1))
sketch12.addConstraint(Sketcher.Constraint("Horizontal", 3))
sketch12.addConstraint(Sketcher.Constraint("Horizontal", 4))
sketch12.addConstraint(Sketcher.Constraint("Horizontal", 6))
sketch12.addConstraint(Sketcher.Constraint("Symmetric", 0, 2, 4, 2, -2))
sketch12.addConstraint(Sketcher.Constraint("Symmetric", 3, 2, 5, 2, -2))
sketch12.addConstraint(Sketcher.Constraint("Equal", 1, 4))
sketch12.addConstraint(Sketcher.Constraint("Equal", 3, 6))
sketch12.addConstraint(Sketcher.Constraint("DistanceY", 0, 2, -1, 1, Q("0.406 in")))
sketch12.addConstraint(Sketcher.Constraint("DistanceY", 2, 2, -1, 1, Q("0.094 in")))
sketch12.addConstraint(Sketcher.Constraint("DistanceX", 3, 1, 3, 2, Q("0.200579 mm")))
sketch12.addConstraint(Sketcher.Constraint("DistanceX", -1, 1, 2, 2, Q("2.028102 mm")))
sketch12.addConstraint(Sketcher.Constraint("Distance", 0, Q("8.035268 mm")))
sketch12.addConstraint(Sketcher.Constraint("DistanceX", 1, 2, 1, 1, Q("0.104605 mm")))
pad12 = doc.addObject("PartDesign::Pad", "Pad011")
body.addObject(pad12)
pad12.Profile = sketch12
pad12.Type = "TwoLengths"
pad12.Length = Q("0.002 in")
pad12.Length2 = Q("0.002 in")
pad12.Reversed = True

sketch13 = doc.addObject("Sketcher::SketchObject", "Sketch012")
body.addObject(sketch13)
sketch13.AttachmentSupport = (doc.XY_Plane, [""])
sketch13.MapMode = "FlatFace"
sketch13.AttachmentOffset = App.Placement(V(0, 0, 0.415 * 25.4), App.Rotation())
sketch13.addGeometry(Part.LineSegment(V(0.8, -10.31, 0), V(2.03, -2.39, 0)), False)
sketch13.addGeometry(Part.LineSegment(V(2.03, -2.39, 0), V(2.23, -2.39, 0)), False)
sketch13.addGeometry(Part.LineSegment(V(2.23, -2.39, 0), V(0.9, -10.31, 0)), False)
sketch13.addGeometry(Part.LineSegment(V(0.9, -10.31, 0), V(0.8, -10.31, 0)), False)
sketch13.addGeometry(Part.LineSegment(V(-0.8, -10.31, 0), V(-0.9, -10.31, 0)), False)
sketch13.addGeometry(Part.LineSegment(V(-0.9, -10.31, 0), V(-2.23, -2.39, 0)), False)
sketch13.addGeometry(Part.LineSegment(V(-2.23, -2.39, 0), V(-2.03, -2.39, 0)), False)
sketch13.addGeometry(Part.LineSegment(V(-2.03, -2.39, 0), V(-0.8, -10.31, 0)), False)
sketch13.addConstraint(Sketcher.Constraint("Coincident", 0, 2, 1, 1))
sketch13.addConstraint(Sketcher.Constraint("Coincident", 1, 2, 2, 1))
sketch13.addConstraint(Sketcher.Constraint("Coincident", 2, 2, 3, 1))
sketch13.addConstraint(Sketcher.Constraint("Coincident", 3, 2, 0, 1))
sketch13.addConstraint(Sketcher.Constraint("Coincident", 4, 2, 5, 1))
sketch13.addConstraint(Sketcher.Constraint("Coincident", 5, 2, 6, 1))
sketch13.addConstraint(Sketcher.Constraint("Coincident", 6, 2, 7, 1))
sketch13.addConstraint(Sketcher.Constraint("Coincident", 7, 2, 4, 1))
sketch13.addConstraint(Sketcher.Constraint("Horizontal", 1))
sketch13.addConstraint(Sketcher.Constraint("Horizontal", 3))
sketch13.addConstraint(Sketcher.Constraint("Horizontal", 4))
sketch13.addConstraint(Sketcher.Constraint("Horizontal", 6))
sketch13.addConstraint(Sketcher.Constraint("Symmetric", 2, 2, 4, 2, -2))
sketch13.addConstraint(Sketcher.Constraint("Symmetric", 1, 2, 5, 2, -2))
sketch13.addConstraint(Sketcher.Constraint("Equal", 3, 4))
sketch13.addConstraint(Sketcher.Constraint("Equal", 1, 6))
sketch13.addConstraint(Sketcher.Constraint("DistanceY", 0, 2, -1, 1, Q("0.094 in")))
sketch13.addConstraint(Sketcher.Constraint("DistanceY", 2, 2, -1, 1, Q("0.406 in")))
sketch13.addConstraint(Sketcher.Constraint("DistanceX", 1, 1, 1, 2, Q("0.200579 mm")))
sketch13.addConstraint(Sketcher.Constraint("DistanceX", -1, 1, 0, 2, Q("2.028102 mm")))
sketch13.addConstraint(Sketcher.Constraint("Distance", 2, Q("8.035268 mm")))
sketch13.addConstraint(Sketcher.Constraint("DistanceX", 3, 2, 3, 1, Q("0.104605 mm")))
pad13 = doc.addObject("PartDesign::Pad", "Pad012")
body.addObject(pad13)
pad13.Profile = sketch13
pad13.Type = "TwoLengths"
pad13.Length = Q("0.002 in")
pad13.Length2 = Q("0.002 in")
pad13.Reversed = True

sketch14 = doc.addObject("Sketcher::SketchObject", "Sketch013")
body.addObject(sketch14)
sketch14.AttachmentSupport = (doc.XY_Plane, [""])
sketch14.MapMode = "FlatFace"
sketch14.AttachmentOffset = App.Placement(V(0, 0, 0.365 * 25.4), App.Rotation())
sketch14.addGeometry(Part.LineSegment(V(-0.9, -10.31, 0), V(-2.23, -2.39, 0)), False)
sketch14.addGeometry(Part.LineSegment(V(-2.23, -2.39, 0), V(-2.03, -2.39, 0)), False)
sketch14.addGeometry(Part.LineSegment(V(-2.03, -2.39, 0), V(-0.8, -10.31, 0)), False)
sketch14.addGeometry(Part.LineSegment(V(-0.8, -10.31, 0), V(-0.9, -10.31, 0)), False)
sketch14.addGeometry(Part.LineSegment(V(0.9, -10.31, 0), V(0.8, -10.31, 0)), False)
sketch14.addGeometry(Part.LineSegment(V(0.8, -10.31, 0), V(2.03, -2.39, 0)), False)
sketch14.addGeometry(Part.LineSegment(V(2.03, -2.39, 0), V(2.23, -2.39, 0)), False)
sketch14.addGeometry(Part.LineSegment(V(2.23, -2.39, 0), V(0.9, -10.31, 0)), False)
sketch14.addConstraint(Sketcher.Constraint("Coincident", 0, 2, 1, 1))
sketch14.addConstraint(Sketcher.Constraint("Coincident", 1, 2, 2, 1))
sketch14.addConstraint(Sketcher.Constraint("Coincident", 2, 2, 3, 1))
sketch14.addConstraint(Sketcher.Constraint("Coincident", 3, 2, 0, 1))
sketch14.addConstraint(Sketcher.Constraint("Coincident", 4, 2, 5, 1))
sketch14.addConstraint(Sketcher.Constraint("Coincident", 5, 2, 6, 1))
sketch14.addConstraint(Sketcher.Constraint("Coincident", 6, 2, 7, 1))
sketch14.addConstraint(Sketcher.Constraint("Coincident", 7, 2, 4, 1))
sketch14.addConstraint(Sketcher.Constraint("Horizontal", 1))
sketch14.addConstraint(Sketcher.Constraint("Horizontal", 3))
sketch14.addConstraint(Sketcher.Constraint("Horizontal", 4))
sketch14.addConstraint(Sketcher.Constraint("Horizontal", 6))
sketch14.addConstraint(Sketcher.Constraint("Symmetric", 2, 2, 4, 2, -2))
sketch14.addConstraint(Sketcher.Constraint("Symmetric", 1, 2, 5, 2, -2))
sketch14.addConstraint(Sketcher.Constraint("Equal", 3, 4))
sketch14.addConstraint(Sketcher.Constraint("Equal", 1, 6))
sketch14.addConstraint(Sketcher.Constraint("DistanceY", 0, 2, -1, 1, Q("0.094 in")))
sketch14.addConstraint(Sketcher.Constraint("DistanceY", 2, 2, -1, 1, Q("0.406 in")))
sketch14.addConstraint(Sketcher.Constraint("DistanceX", 1, 1, 1, 2, Q("0.200579 mm")))
sketch14.addConstraint(Sketcher.Constraint("DistanceX", 1, 2, -1, 1, Q("2.028102 mm")))
sketch14.addConstraint(Sketcher.Constraint("Distance", 0, Q("8.035268 mm")))
sketch14.addConstraint(Sketcher.Constraint("DistanceX", 3, 2, 3, 1, Q("0.104605 mm")))
pad14 = doc.addObject("PartDesign::Pad", "Pad013")
body.addObject(pad14)
pad14.Profile = sketch14
pad14.Type = "TwoLengths"
pad14.Length = Q("0.002 in")
pad14.Length2 = Q("0.002 in")
pad14.Reversed = True

sketch15 = doc.addObject("Sketcher::SketchObject", "Sketch014")
body.addObject(sketch15)
sketch15.AttachmentSupport = (doc.XY_Plane, [""])
sketch15.MapMode = "FlatFace"
sketch15.AttachmentOffset = App.Placement(V(0, 0, 0.315 * 25.4), App.Rotation())
sketch15.addGeometry(Part.LineSegment(V(0.8, -10.31, 0), V(2.03, -2.39, 0)), False)
sketch15.addGeometry(Part.LineSegment(V(2.03, -2.39, 0), V(2.23, -2.39, 0)), False)
sketch15.addGeometry(Part.LineSegment(V(2.23, -2.39, 0), V(0.9, -10.31, 0)), False)
sketch15.addGeometry(Part.LineSegment(V(0.9, -10.31, 0), V(0.8, -10.31, 0)), False)
sketch15.addGeometry(Part.LineSegment(V(-0.8, -10.31, 0), V(-0.9, -10.31, 0)), False)
sketch15.addGeometry(Part.LineSegment(V(-0.9, -10.31, 0), V(-2.23, -2.39, 0)), False)
sketch15.addGeometry(Part.LineSegment(V(-2.23, -2.39, 0), V(-2.03, -2.39, 0)), False)
sketch15.addGeometry(Part.LineSegment(V(-2.03, -2.39, 0), V(-0.8, -10.31, 0)), False)
sketch15.addConstraint(Sketcher.Constraint("Coincident", 0, 2, 1, 1))
sketch15.addConstraint(Sketcher.Constraint("Coincident", 1, 2, 2, 1))
sketch15.addConstraint(Sketcher.Constraint("Coincident", 2, 2, 3, 1))
sketch15.addConstraint(Sketcher.Constraint("Coincident", 3, 2, 0, 1))
sketch15.addConstraint(Sketcher.Constraint("Coincident", 4, 2, 5, 1))
sketch15.addConstraint(Sketcher.Constraint("Coincident", 5, 2, 6, 1))
sketch15.addConstraint(Sketcher.Constraint("Coincident", 6, 2, 7, 1))
sketch15.addConstraint(Sketcher.Constraint("Coincident", 7, 2, 4, 1))
sketch15.addConstraint(Sketcher.Constraint("Horizontal", 1))
sketch15.addConstraint(Sketcher.Constraint("Horizontal", 3))
sketch15.addConstraint(Sketcher.Constraint("Horizontal", 4))
sketch15.addConstraint(Sketcher.Constraint("Horizontal", 6))
sketch15.addConstraint(Sketcher.Constraint("Symmetric", 2, 2, 4, 2, -2))
sketch15.addConstraint(Sketcher.Constraint("Symmetric", 1, 2, 5, 2, -2))
sketch15.addConstraint(Sketcher.Constraint("Equal", 3, 4))
sketch15.addConstraint(Sketcher.Constraint("Equal", 1, 6))
sketch15.addConstraint(Sketcher.Constraint("DistanceY", 0, 2, -1, 1, Q("0.094 in")))
sketch15.addConstraint(Sketcher.Constraint("DistanceY", 2, 2, -1, 1, Q("0.406 in")))
sketch15.addConstraint(Sketcher.Constraint("DistanceX", 1, 1, 1, 2, Q("0.200579 mm")))
sketch15.addConstraint(Sketcher.Constraint("DistanceX", -1, 1, 0, 2, Q("2.028102 mm")))
sketch15.addConstraint(Sketcher.Constraint("Distance", 2, Q("8.035268 mm")))
sketch15.addConstraint(Sketcher.Constraint("DistanceX", 3, 2, 3, 1, Q("0.104605 mm")))
pad15 = doc.addObject("PartDesign::Pad", "Pad014")
body.addObject(pad15)
pad15.Profile = sketch15
pad15.Type = "TwoLengths"
pad15.Length = Q("0.002 in")
pad15.Length2 = Q("0.002 in")
pad15.Reversed = True

sketch16 = doc.addObject("Sketcher::SketchObject", "Sketch015")
body.addObject(sketch16)
sketch16.AttachmentSupport = (doc.XY_Plane, [""])
sketch16.MapMode = "FlatFace"
sketch16.AttachmentOffset = App.Placement(V(0, 0, 0.315 * 25.4), App.Rotation())
sketch16.addGeometry(Part.LineSegment(V(-2.3, 2.4, 0), V(-2.3, 3.6, 0)), False)
sketch16.addGeometry(Part.ArcOfCircle(Part.Circle(V(-1.2, 3.6, 0), V(0, 0, 1), 1.2), math.radians(0), math.radians(180)), False)
sketch16.addGeometry(Part.LineSegment(V(0, 3.6, 0), V(0, 2.4, 0)), False)
sketch16.addGeometry(Part.LineSegment(V(0, 2.4, 0), V(-2.3, 2.4, 0)), False)
sketch16.addGeometry(Part.Circle(V(-1.2, 3.6, 0), V(0, 0, 1), 0.6), False)
sketch16.addConstraint(Sketcher.Constraint("Tangent", 0, 2, 1, 2))
sketch16.addConstraint(Sketcher.Constraint("Tangent", 1, 1, 2, 1))
sketch16.addConstraint(Sketcher.Constraint("Coincident", 2, 2, 3, 1))
sketch16.addConstraint(Sketcher.Constraint("Coincident", 3, 2, 0, 1))
sketch16.addConstraint(Sketcher.Constraint("Vertical", 0))
sketch16.addConstraint(Sketcher.Constraint("Vertical", 2))
sketch16.addConstraint(Sketcher.Constraint("Horizontal", 3))
sketch16.addConstraint(Sketcher.Constraint("Coincident", 4, 3, 1, 3))
sketch16.addConstraint(Sketcher.Constraint("PointOnObject", 1, 1, -2))
sketch16.addConstraint(Sketcher.Constraint("Diameter", 4, Q("0.044 in")))
sketch16.addConstraint(Sketcher.Constraint("Radius", 1, Q("0.0455 in")))
sketch16.addConstraint(Sketcher.Constraint("DistanceY", 0, 1, 0, 2, Q("0.0475 in")))
sketch16.addConstraint(Sketcher.Constraint("DistanceY", -1, 1, 2, 2, Q("0.094 in")))
pad16 = doc.addObject("PartDesign::Pad", "Pad015")
body.addObject(pad16)
pad16.Profile = sketch16
pad16.Type = "TwoLengths"
pad16.Length = Q("0.005 in")
pad16.Length2 = Q("0.005 in")
pad16.Reversed = True

sketch17 = doc.addObject("Sketcher::SketchObject", "Sketch016")
body.addObject(sketch17)
sketch17.AttachmentSupport = (doc.XY_Plane, [""])
sketch17.MapMode = "FlatFace"
sketch17.AttachmentOffset = App.Placement(V(0, 0, 0.415 * 25.4), App.Rotation())
sketch17.addGeometry(Part.LineSegment(V(-2.3, 2.4, 0), V(-2.3, 3.6, 0)), False)
sketch17.addGeometry(Part.ArcOfCircle(Part.Circle(V(-1.2, 3.6, 0), V(0, 0, 1), 1.2), math.radians(0), math.radians(180)), False)
sketch17.addGeometry(Part.LineSegment(V(0, 3.6, 0), V(0, 2.4, 0)), False)
sketch17.addGeometry(Part.LineSegment(V(0, 2.4, 0), V(-2.3, 2.4, 0)), False)
sketch17.addGeometry(Part.Circle(V(-1.2, 3.6, 0), V(0, 0, 1), 0.6), False)
sketch17.addConstraint(Sketcher.Constraint("Tangent", 0, 2, 1, 2))
sketch17.addConstraint(Sketcher.Constraint("Tangent", 1, 1, 2, 1))
sketch17.addConstraint(Sketcher.Constraint("Coincident", 2, 2, 3, 1))
sketch17.addConstraint(Sketcher.Constraint("Coincident", 3, 2, 0, 1))
sketch17.addConstraint(Sketcher.Constraint("Vertical", 0))
sketch17.addConstraint(Sketcher.Constraint("Vertical", 2))
sketch17.addConstraint(Sketcher.Constraint("Horizontal", 3))
sketch17.addConstraint(Sketcher.Constraint("Coincident", 4, 3, 1, 3))
sketch17.addConstraint(Sketcher.Constraint("PointOnObject", 1, 1, -2))
sketch17.addConstraint(Sketcher.Constraint("Diameter", 4, Q("0.044 in")))
sketch17.addConstraint(Sketcher.Constraint("Radius", 1, Q("0.0455 in")))
sketch17.addConstraint(Sketcher.Constraint("DistanceY", 0, 1, 0, 2, Q("0.0475 in")))
sketch17.addConstraint(Sketcher.Constraint("DistanceY", -1, 1, 2, 2, Q("0.094 in")))
pad17 = doc.addObject("PartDesign::Pad", "Pad016")
body.addObject(pad17)
pad17.Profile = sketch17
pad17.Type = "TwoLengths"
pad17.Length = Q("0.005 in")
pad17.Length2 = Q("0.005 in")
pad17.Reversed = True

sketch18 = doc.addObject("Sketcher::SketchObject", "Sketch017")
body.addObject(sketch18)
sketch18.AttachmentSupport = (doc.XY_Plane, [""])
sketch18.MapMode = "FlatFace"
sketch18.AttachmentOffset = App.Placement(V(0, 0, 0.365 * 25.4), App.Rotation())
sketch18.addGeometry(Part.LineSegment(V(2.3, 3.6, 0), V(2.3, 2.4, 0)), False)
sketch18.addGeometry(Part.LineSegment(V(2.3, 2.4, 0), V(0, 2.4, 0)), False)
sketch18.addGeometry(Part.LineSegment(V(0, 2.4, 0), V(0, 3.6, 0)), False)
sketch18.addGeometry(Part.ArcOfCircle(Part.Circle(V(1.2, 3.6, 0), V(0, 0, 1), 1.2), math.radians(0), math.radians(180)), False)
sketch18.addGeometry(Part.Circle(V(1.2, 3.6, 0), V(0, 0, 1), 0.6), False)
sketch18.addConstraint(Sketcher.Constraint("Coincident", 0, 2, 1, 1))
sketch18.addConstraint(Sketcher.Constraint("Coincident", 1, 2, 2, 1))
sketch18.addConstraint(Sketcher.Constraint("Tangent", 2, 2, 3, 2))
sketch18.addConstraint(Sketcher.Constraint("Tangent", 3, 1, 0, 1))
sketch18.addConstraint(Sketcher.Constraint("Vertical", 0))
sketch18.addConstraint(Sketcher.Constraint("Horizontal", 1))
sketch18.addConstraint(Sketcher.Constraint("Vertical", 2))
sketch18.addConstraint(Sketcher.Constraint("Coincident", 4, 3, 3, 3))
sketch18.addConstraint(Sketcher.Constraint("PointOnObject", 1, 2, -2))
sketch18.addConstraint(Sketcher.Constraint("Diameter", 4, Q("0.044 in")))
sketch18.addConstraint(Sketcher.Constraint("Radius", 3, Q("0.0455 in")))
sketch18.addConstraint(Sketcher.Constraint("DistanceY", 0, 2, 0, 1, Q("0.0475 in")))
sketch18.addConstraint(Sketcher.Constraint("DistanceY", -1, 1, 0, 2, Q("0.094 in")))
pad18 = doc.addObject("PartDesign::Pad", "Pad017")
body.addObject(pad18)
pad18.Profile = sketch18
pad18.Type = "TwoLengths"
pad18.Length = Q("0.005 in")
pad18.Length2 = Q("0.005 in")
pad18.Reversed = True

doc.recompute()
